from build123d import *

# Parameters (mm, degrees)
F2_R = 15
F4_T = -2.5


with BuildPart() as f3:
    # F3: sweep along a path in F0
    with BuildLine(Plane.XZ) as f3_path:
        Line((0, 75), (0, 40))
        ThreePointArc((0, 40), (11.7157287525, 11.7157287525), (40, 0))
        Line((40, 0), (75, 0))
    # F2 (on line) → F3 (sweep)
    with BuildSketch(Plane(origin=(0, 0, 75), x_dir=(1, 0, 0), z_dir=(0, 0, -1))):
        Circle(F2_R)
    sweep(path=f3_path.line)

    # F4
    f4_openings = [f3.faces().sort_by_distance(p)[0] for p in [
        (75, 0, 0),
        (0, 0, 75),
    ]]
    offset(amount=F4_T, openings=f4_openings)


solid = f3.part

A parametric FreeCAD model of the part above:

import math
import FreeCAD as App
import Part
import Sketcher


def faces_at(feature, points):
    """Names of the faces that lie closest to the given points."""
    faces = feature.Shape.Faces
    near = lambda p: min(range(len(faces)), key=lambda i: faces[i].distToShape(Part.Vertex(*p))[0])
    return sorted({f"Face{near(p) + 1}" for p in points})

doc = App.newDocument("Part")
body = doc.addObject("PartDesign::Body", "Body")

# Sketch on XY plane
sketch1 = body.newObject("Sketcher::SketchObject", "Sketch")
sketch1.AttachmentSupport = (doc.getObject("XY_Plane"), [""])
sketch1.MapMode = "FlatFace"
sketch1.AttachmentOffset = App.Placement(App.Vector(0, 0, 75), App.Rotation())
sketch1.addGeometry(Part.Circle(App.Vector(0, 0, 0), App.Vector(0, 0, 1), 15), False)
sketch1.addConstraint(Sketcher.Constraint("Coincident", 0, 3, -1, 1))
sketch1.addConstraint(Sketcher.Constraint("Diameter", 0, 30.0))

# Sketch on XZ plane
sketch2 = body.newObject("Sketcher::SketchObject", "Sketch001")
sketch2.AttachmentSupport = (doc.getObject("XZ_Plane"), [""])
sketch2.MapMode = "FlatFace"
sketch2.addGeometry(Part.LineSegment(App.Vector(0, 75, 0), App.Vector(0, 40, 0)), False)
sketch2.addGeometry(Part.ArcOfCircle(Part.Circle(App.Vector(40, 40, 0), App.Vector(0, 0, 1), 40), math.radians(180), math.radians(270)), False)
sketch2.addGeometry(Part.LineSegment(App.Vector(40, 0, 0), App.Vector(75, 0, 0)), False)
sketch2.addConstraint(Sketcher.Constraint("Tangent", 0, 2, 1, 1))
sketch2.addConstraint(Sketcher.Constraint("Tangent", 1, 2, 2, 1))
sketch2.addConstraint(Sketcher.Constraint("Vertical", 0))
sketch2.addConstraint(Sketcher.Constraint("Horizontal", 2))
sketch2.addConstraint(Sketcher.Constraint("PointOnObject", 0, 1, -2))
sketch2.addConstraint(Sketcher.Constraint("PointOnObject", 1, 2, -1))
sketch2.addConstraint(Sketcher.Constraint("Equal", 2, 0))
sketch2.addConstraint(Sketcher.Constraint("Radius", 1, 40.0))
sketch2.addConstraint(Sketcher.Constraint("DistanceX", 2, 1, 2, 2, 35.0))
doc.recompute()

additivepipe = body.newObject("PartDesign::AdditivePipe", "AdditivePipe")
additivepipe.Profile = sketch1
additivepipe.Spine = (sketch2, ["Edge1", "Edge2", "Edge3"])
doc.recompute()

thickness = body.newObject("PartDesign::Thickness", "Thickness")
thickness.Base = (additivepipe, faces_at(additivepipe, [(75, 0, 0), (0, 0, 75)]))
thickness.Value = 2.5
thickness.Reversed = True
thickness.Join = "Arc"

doc.recompute()
